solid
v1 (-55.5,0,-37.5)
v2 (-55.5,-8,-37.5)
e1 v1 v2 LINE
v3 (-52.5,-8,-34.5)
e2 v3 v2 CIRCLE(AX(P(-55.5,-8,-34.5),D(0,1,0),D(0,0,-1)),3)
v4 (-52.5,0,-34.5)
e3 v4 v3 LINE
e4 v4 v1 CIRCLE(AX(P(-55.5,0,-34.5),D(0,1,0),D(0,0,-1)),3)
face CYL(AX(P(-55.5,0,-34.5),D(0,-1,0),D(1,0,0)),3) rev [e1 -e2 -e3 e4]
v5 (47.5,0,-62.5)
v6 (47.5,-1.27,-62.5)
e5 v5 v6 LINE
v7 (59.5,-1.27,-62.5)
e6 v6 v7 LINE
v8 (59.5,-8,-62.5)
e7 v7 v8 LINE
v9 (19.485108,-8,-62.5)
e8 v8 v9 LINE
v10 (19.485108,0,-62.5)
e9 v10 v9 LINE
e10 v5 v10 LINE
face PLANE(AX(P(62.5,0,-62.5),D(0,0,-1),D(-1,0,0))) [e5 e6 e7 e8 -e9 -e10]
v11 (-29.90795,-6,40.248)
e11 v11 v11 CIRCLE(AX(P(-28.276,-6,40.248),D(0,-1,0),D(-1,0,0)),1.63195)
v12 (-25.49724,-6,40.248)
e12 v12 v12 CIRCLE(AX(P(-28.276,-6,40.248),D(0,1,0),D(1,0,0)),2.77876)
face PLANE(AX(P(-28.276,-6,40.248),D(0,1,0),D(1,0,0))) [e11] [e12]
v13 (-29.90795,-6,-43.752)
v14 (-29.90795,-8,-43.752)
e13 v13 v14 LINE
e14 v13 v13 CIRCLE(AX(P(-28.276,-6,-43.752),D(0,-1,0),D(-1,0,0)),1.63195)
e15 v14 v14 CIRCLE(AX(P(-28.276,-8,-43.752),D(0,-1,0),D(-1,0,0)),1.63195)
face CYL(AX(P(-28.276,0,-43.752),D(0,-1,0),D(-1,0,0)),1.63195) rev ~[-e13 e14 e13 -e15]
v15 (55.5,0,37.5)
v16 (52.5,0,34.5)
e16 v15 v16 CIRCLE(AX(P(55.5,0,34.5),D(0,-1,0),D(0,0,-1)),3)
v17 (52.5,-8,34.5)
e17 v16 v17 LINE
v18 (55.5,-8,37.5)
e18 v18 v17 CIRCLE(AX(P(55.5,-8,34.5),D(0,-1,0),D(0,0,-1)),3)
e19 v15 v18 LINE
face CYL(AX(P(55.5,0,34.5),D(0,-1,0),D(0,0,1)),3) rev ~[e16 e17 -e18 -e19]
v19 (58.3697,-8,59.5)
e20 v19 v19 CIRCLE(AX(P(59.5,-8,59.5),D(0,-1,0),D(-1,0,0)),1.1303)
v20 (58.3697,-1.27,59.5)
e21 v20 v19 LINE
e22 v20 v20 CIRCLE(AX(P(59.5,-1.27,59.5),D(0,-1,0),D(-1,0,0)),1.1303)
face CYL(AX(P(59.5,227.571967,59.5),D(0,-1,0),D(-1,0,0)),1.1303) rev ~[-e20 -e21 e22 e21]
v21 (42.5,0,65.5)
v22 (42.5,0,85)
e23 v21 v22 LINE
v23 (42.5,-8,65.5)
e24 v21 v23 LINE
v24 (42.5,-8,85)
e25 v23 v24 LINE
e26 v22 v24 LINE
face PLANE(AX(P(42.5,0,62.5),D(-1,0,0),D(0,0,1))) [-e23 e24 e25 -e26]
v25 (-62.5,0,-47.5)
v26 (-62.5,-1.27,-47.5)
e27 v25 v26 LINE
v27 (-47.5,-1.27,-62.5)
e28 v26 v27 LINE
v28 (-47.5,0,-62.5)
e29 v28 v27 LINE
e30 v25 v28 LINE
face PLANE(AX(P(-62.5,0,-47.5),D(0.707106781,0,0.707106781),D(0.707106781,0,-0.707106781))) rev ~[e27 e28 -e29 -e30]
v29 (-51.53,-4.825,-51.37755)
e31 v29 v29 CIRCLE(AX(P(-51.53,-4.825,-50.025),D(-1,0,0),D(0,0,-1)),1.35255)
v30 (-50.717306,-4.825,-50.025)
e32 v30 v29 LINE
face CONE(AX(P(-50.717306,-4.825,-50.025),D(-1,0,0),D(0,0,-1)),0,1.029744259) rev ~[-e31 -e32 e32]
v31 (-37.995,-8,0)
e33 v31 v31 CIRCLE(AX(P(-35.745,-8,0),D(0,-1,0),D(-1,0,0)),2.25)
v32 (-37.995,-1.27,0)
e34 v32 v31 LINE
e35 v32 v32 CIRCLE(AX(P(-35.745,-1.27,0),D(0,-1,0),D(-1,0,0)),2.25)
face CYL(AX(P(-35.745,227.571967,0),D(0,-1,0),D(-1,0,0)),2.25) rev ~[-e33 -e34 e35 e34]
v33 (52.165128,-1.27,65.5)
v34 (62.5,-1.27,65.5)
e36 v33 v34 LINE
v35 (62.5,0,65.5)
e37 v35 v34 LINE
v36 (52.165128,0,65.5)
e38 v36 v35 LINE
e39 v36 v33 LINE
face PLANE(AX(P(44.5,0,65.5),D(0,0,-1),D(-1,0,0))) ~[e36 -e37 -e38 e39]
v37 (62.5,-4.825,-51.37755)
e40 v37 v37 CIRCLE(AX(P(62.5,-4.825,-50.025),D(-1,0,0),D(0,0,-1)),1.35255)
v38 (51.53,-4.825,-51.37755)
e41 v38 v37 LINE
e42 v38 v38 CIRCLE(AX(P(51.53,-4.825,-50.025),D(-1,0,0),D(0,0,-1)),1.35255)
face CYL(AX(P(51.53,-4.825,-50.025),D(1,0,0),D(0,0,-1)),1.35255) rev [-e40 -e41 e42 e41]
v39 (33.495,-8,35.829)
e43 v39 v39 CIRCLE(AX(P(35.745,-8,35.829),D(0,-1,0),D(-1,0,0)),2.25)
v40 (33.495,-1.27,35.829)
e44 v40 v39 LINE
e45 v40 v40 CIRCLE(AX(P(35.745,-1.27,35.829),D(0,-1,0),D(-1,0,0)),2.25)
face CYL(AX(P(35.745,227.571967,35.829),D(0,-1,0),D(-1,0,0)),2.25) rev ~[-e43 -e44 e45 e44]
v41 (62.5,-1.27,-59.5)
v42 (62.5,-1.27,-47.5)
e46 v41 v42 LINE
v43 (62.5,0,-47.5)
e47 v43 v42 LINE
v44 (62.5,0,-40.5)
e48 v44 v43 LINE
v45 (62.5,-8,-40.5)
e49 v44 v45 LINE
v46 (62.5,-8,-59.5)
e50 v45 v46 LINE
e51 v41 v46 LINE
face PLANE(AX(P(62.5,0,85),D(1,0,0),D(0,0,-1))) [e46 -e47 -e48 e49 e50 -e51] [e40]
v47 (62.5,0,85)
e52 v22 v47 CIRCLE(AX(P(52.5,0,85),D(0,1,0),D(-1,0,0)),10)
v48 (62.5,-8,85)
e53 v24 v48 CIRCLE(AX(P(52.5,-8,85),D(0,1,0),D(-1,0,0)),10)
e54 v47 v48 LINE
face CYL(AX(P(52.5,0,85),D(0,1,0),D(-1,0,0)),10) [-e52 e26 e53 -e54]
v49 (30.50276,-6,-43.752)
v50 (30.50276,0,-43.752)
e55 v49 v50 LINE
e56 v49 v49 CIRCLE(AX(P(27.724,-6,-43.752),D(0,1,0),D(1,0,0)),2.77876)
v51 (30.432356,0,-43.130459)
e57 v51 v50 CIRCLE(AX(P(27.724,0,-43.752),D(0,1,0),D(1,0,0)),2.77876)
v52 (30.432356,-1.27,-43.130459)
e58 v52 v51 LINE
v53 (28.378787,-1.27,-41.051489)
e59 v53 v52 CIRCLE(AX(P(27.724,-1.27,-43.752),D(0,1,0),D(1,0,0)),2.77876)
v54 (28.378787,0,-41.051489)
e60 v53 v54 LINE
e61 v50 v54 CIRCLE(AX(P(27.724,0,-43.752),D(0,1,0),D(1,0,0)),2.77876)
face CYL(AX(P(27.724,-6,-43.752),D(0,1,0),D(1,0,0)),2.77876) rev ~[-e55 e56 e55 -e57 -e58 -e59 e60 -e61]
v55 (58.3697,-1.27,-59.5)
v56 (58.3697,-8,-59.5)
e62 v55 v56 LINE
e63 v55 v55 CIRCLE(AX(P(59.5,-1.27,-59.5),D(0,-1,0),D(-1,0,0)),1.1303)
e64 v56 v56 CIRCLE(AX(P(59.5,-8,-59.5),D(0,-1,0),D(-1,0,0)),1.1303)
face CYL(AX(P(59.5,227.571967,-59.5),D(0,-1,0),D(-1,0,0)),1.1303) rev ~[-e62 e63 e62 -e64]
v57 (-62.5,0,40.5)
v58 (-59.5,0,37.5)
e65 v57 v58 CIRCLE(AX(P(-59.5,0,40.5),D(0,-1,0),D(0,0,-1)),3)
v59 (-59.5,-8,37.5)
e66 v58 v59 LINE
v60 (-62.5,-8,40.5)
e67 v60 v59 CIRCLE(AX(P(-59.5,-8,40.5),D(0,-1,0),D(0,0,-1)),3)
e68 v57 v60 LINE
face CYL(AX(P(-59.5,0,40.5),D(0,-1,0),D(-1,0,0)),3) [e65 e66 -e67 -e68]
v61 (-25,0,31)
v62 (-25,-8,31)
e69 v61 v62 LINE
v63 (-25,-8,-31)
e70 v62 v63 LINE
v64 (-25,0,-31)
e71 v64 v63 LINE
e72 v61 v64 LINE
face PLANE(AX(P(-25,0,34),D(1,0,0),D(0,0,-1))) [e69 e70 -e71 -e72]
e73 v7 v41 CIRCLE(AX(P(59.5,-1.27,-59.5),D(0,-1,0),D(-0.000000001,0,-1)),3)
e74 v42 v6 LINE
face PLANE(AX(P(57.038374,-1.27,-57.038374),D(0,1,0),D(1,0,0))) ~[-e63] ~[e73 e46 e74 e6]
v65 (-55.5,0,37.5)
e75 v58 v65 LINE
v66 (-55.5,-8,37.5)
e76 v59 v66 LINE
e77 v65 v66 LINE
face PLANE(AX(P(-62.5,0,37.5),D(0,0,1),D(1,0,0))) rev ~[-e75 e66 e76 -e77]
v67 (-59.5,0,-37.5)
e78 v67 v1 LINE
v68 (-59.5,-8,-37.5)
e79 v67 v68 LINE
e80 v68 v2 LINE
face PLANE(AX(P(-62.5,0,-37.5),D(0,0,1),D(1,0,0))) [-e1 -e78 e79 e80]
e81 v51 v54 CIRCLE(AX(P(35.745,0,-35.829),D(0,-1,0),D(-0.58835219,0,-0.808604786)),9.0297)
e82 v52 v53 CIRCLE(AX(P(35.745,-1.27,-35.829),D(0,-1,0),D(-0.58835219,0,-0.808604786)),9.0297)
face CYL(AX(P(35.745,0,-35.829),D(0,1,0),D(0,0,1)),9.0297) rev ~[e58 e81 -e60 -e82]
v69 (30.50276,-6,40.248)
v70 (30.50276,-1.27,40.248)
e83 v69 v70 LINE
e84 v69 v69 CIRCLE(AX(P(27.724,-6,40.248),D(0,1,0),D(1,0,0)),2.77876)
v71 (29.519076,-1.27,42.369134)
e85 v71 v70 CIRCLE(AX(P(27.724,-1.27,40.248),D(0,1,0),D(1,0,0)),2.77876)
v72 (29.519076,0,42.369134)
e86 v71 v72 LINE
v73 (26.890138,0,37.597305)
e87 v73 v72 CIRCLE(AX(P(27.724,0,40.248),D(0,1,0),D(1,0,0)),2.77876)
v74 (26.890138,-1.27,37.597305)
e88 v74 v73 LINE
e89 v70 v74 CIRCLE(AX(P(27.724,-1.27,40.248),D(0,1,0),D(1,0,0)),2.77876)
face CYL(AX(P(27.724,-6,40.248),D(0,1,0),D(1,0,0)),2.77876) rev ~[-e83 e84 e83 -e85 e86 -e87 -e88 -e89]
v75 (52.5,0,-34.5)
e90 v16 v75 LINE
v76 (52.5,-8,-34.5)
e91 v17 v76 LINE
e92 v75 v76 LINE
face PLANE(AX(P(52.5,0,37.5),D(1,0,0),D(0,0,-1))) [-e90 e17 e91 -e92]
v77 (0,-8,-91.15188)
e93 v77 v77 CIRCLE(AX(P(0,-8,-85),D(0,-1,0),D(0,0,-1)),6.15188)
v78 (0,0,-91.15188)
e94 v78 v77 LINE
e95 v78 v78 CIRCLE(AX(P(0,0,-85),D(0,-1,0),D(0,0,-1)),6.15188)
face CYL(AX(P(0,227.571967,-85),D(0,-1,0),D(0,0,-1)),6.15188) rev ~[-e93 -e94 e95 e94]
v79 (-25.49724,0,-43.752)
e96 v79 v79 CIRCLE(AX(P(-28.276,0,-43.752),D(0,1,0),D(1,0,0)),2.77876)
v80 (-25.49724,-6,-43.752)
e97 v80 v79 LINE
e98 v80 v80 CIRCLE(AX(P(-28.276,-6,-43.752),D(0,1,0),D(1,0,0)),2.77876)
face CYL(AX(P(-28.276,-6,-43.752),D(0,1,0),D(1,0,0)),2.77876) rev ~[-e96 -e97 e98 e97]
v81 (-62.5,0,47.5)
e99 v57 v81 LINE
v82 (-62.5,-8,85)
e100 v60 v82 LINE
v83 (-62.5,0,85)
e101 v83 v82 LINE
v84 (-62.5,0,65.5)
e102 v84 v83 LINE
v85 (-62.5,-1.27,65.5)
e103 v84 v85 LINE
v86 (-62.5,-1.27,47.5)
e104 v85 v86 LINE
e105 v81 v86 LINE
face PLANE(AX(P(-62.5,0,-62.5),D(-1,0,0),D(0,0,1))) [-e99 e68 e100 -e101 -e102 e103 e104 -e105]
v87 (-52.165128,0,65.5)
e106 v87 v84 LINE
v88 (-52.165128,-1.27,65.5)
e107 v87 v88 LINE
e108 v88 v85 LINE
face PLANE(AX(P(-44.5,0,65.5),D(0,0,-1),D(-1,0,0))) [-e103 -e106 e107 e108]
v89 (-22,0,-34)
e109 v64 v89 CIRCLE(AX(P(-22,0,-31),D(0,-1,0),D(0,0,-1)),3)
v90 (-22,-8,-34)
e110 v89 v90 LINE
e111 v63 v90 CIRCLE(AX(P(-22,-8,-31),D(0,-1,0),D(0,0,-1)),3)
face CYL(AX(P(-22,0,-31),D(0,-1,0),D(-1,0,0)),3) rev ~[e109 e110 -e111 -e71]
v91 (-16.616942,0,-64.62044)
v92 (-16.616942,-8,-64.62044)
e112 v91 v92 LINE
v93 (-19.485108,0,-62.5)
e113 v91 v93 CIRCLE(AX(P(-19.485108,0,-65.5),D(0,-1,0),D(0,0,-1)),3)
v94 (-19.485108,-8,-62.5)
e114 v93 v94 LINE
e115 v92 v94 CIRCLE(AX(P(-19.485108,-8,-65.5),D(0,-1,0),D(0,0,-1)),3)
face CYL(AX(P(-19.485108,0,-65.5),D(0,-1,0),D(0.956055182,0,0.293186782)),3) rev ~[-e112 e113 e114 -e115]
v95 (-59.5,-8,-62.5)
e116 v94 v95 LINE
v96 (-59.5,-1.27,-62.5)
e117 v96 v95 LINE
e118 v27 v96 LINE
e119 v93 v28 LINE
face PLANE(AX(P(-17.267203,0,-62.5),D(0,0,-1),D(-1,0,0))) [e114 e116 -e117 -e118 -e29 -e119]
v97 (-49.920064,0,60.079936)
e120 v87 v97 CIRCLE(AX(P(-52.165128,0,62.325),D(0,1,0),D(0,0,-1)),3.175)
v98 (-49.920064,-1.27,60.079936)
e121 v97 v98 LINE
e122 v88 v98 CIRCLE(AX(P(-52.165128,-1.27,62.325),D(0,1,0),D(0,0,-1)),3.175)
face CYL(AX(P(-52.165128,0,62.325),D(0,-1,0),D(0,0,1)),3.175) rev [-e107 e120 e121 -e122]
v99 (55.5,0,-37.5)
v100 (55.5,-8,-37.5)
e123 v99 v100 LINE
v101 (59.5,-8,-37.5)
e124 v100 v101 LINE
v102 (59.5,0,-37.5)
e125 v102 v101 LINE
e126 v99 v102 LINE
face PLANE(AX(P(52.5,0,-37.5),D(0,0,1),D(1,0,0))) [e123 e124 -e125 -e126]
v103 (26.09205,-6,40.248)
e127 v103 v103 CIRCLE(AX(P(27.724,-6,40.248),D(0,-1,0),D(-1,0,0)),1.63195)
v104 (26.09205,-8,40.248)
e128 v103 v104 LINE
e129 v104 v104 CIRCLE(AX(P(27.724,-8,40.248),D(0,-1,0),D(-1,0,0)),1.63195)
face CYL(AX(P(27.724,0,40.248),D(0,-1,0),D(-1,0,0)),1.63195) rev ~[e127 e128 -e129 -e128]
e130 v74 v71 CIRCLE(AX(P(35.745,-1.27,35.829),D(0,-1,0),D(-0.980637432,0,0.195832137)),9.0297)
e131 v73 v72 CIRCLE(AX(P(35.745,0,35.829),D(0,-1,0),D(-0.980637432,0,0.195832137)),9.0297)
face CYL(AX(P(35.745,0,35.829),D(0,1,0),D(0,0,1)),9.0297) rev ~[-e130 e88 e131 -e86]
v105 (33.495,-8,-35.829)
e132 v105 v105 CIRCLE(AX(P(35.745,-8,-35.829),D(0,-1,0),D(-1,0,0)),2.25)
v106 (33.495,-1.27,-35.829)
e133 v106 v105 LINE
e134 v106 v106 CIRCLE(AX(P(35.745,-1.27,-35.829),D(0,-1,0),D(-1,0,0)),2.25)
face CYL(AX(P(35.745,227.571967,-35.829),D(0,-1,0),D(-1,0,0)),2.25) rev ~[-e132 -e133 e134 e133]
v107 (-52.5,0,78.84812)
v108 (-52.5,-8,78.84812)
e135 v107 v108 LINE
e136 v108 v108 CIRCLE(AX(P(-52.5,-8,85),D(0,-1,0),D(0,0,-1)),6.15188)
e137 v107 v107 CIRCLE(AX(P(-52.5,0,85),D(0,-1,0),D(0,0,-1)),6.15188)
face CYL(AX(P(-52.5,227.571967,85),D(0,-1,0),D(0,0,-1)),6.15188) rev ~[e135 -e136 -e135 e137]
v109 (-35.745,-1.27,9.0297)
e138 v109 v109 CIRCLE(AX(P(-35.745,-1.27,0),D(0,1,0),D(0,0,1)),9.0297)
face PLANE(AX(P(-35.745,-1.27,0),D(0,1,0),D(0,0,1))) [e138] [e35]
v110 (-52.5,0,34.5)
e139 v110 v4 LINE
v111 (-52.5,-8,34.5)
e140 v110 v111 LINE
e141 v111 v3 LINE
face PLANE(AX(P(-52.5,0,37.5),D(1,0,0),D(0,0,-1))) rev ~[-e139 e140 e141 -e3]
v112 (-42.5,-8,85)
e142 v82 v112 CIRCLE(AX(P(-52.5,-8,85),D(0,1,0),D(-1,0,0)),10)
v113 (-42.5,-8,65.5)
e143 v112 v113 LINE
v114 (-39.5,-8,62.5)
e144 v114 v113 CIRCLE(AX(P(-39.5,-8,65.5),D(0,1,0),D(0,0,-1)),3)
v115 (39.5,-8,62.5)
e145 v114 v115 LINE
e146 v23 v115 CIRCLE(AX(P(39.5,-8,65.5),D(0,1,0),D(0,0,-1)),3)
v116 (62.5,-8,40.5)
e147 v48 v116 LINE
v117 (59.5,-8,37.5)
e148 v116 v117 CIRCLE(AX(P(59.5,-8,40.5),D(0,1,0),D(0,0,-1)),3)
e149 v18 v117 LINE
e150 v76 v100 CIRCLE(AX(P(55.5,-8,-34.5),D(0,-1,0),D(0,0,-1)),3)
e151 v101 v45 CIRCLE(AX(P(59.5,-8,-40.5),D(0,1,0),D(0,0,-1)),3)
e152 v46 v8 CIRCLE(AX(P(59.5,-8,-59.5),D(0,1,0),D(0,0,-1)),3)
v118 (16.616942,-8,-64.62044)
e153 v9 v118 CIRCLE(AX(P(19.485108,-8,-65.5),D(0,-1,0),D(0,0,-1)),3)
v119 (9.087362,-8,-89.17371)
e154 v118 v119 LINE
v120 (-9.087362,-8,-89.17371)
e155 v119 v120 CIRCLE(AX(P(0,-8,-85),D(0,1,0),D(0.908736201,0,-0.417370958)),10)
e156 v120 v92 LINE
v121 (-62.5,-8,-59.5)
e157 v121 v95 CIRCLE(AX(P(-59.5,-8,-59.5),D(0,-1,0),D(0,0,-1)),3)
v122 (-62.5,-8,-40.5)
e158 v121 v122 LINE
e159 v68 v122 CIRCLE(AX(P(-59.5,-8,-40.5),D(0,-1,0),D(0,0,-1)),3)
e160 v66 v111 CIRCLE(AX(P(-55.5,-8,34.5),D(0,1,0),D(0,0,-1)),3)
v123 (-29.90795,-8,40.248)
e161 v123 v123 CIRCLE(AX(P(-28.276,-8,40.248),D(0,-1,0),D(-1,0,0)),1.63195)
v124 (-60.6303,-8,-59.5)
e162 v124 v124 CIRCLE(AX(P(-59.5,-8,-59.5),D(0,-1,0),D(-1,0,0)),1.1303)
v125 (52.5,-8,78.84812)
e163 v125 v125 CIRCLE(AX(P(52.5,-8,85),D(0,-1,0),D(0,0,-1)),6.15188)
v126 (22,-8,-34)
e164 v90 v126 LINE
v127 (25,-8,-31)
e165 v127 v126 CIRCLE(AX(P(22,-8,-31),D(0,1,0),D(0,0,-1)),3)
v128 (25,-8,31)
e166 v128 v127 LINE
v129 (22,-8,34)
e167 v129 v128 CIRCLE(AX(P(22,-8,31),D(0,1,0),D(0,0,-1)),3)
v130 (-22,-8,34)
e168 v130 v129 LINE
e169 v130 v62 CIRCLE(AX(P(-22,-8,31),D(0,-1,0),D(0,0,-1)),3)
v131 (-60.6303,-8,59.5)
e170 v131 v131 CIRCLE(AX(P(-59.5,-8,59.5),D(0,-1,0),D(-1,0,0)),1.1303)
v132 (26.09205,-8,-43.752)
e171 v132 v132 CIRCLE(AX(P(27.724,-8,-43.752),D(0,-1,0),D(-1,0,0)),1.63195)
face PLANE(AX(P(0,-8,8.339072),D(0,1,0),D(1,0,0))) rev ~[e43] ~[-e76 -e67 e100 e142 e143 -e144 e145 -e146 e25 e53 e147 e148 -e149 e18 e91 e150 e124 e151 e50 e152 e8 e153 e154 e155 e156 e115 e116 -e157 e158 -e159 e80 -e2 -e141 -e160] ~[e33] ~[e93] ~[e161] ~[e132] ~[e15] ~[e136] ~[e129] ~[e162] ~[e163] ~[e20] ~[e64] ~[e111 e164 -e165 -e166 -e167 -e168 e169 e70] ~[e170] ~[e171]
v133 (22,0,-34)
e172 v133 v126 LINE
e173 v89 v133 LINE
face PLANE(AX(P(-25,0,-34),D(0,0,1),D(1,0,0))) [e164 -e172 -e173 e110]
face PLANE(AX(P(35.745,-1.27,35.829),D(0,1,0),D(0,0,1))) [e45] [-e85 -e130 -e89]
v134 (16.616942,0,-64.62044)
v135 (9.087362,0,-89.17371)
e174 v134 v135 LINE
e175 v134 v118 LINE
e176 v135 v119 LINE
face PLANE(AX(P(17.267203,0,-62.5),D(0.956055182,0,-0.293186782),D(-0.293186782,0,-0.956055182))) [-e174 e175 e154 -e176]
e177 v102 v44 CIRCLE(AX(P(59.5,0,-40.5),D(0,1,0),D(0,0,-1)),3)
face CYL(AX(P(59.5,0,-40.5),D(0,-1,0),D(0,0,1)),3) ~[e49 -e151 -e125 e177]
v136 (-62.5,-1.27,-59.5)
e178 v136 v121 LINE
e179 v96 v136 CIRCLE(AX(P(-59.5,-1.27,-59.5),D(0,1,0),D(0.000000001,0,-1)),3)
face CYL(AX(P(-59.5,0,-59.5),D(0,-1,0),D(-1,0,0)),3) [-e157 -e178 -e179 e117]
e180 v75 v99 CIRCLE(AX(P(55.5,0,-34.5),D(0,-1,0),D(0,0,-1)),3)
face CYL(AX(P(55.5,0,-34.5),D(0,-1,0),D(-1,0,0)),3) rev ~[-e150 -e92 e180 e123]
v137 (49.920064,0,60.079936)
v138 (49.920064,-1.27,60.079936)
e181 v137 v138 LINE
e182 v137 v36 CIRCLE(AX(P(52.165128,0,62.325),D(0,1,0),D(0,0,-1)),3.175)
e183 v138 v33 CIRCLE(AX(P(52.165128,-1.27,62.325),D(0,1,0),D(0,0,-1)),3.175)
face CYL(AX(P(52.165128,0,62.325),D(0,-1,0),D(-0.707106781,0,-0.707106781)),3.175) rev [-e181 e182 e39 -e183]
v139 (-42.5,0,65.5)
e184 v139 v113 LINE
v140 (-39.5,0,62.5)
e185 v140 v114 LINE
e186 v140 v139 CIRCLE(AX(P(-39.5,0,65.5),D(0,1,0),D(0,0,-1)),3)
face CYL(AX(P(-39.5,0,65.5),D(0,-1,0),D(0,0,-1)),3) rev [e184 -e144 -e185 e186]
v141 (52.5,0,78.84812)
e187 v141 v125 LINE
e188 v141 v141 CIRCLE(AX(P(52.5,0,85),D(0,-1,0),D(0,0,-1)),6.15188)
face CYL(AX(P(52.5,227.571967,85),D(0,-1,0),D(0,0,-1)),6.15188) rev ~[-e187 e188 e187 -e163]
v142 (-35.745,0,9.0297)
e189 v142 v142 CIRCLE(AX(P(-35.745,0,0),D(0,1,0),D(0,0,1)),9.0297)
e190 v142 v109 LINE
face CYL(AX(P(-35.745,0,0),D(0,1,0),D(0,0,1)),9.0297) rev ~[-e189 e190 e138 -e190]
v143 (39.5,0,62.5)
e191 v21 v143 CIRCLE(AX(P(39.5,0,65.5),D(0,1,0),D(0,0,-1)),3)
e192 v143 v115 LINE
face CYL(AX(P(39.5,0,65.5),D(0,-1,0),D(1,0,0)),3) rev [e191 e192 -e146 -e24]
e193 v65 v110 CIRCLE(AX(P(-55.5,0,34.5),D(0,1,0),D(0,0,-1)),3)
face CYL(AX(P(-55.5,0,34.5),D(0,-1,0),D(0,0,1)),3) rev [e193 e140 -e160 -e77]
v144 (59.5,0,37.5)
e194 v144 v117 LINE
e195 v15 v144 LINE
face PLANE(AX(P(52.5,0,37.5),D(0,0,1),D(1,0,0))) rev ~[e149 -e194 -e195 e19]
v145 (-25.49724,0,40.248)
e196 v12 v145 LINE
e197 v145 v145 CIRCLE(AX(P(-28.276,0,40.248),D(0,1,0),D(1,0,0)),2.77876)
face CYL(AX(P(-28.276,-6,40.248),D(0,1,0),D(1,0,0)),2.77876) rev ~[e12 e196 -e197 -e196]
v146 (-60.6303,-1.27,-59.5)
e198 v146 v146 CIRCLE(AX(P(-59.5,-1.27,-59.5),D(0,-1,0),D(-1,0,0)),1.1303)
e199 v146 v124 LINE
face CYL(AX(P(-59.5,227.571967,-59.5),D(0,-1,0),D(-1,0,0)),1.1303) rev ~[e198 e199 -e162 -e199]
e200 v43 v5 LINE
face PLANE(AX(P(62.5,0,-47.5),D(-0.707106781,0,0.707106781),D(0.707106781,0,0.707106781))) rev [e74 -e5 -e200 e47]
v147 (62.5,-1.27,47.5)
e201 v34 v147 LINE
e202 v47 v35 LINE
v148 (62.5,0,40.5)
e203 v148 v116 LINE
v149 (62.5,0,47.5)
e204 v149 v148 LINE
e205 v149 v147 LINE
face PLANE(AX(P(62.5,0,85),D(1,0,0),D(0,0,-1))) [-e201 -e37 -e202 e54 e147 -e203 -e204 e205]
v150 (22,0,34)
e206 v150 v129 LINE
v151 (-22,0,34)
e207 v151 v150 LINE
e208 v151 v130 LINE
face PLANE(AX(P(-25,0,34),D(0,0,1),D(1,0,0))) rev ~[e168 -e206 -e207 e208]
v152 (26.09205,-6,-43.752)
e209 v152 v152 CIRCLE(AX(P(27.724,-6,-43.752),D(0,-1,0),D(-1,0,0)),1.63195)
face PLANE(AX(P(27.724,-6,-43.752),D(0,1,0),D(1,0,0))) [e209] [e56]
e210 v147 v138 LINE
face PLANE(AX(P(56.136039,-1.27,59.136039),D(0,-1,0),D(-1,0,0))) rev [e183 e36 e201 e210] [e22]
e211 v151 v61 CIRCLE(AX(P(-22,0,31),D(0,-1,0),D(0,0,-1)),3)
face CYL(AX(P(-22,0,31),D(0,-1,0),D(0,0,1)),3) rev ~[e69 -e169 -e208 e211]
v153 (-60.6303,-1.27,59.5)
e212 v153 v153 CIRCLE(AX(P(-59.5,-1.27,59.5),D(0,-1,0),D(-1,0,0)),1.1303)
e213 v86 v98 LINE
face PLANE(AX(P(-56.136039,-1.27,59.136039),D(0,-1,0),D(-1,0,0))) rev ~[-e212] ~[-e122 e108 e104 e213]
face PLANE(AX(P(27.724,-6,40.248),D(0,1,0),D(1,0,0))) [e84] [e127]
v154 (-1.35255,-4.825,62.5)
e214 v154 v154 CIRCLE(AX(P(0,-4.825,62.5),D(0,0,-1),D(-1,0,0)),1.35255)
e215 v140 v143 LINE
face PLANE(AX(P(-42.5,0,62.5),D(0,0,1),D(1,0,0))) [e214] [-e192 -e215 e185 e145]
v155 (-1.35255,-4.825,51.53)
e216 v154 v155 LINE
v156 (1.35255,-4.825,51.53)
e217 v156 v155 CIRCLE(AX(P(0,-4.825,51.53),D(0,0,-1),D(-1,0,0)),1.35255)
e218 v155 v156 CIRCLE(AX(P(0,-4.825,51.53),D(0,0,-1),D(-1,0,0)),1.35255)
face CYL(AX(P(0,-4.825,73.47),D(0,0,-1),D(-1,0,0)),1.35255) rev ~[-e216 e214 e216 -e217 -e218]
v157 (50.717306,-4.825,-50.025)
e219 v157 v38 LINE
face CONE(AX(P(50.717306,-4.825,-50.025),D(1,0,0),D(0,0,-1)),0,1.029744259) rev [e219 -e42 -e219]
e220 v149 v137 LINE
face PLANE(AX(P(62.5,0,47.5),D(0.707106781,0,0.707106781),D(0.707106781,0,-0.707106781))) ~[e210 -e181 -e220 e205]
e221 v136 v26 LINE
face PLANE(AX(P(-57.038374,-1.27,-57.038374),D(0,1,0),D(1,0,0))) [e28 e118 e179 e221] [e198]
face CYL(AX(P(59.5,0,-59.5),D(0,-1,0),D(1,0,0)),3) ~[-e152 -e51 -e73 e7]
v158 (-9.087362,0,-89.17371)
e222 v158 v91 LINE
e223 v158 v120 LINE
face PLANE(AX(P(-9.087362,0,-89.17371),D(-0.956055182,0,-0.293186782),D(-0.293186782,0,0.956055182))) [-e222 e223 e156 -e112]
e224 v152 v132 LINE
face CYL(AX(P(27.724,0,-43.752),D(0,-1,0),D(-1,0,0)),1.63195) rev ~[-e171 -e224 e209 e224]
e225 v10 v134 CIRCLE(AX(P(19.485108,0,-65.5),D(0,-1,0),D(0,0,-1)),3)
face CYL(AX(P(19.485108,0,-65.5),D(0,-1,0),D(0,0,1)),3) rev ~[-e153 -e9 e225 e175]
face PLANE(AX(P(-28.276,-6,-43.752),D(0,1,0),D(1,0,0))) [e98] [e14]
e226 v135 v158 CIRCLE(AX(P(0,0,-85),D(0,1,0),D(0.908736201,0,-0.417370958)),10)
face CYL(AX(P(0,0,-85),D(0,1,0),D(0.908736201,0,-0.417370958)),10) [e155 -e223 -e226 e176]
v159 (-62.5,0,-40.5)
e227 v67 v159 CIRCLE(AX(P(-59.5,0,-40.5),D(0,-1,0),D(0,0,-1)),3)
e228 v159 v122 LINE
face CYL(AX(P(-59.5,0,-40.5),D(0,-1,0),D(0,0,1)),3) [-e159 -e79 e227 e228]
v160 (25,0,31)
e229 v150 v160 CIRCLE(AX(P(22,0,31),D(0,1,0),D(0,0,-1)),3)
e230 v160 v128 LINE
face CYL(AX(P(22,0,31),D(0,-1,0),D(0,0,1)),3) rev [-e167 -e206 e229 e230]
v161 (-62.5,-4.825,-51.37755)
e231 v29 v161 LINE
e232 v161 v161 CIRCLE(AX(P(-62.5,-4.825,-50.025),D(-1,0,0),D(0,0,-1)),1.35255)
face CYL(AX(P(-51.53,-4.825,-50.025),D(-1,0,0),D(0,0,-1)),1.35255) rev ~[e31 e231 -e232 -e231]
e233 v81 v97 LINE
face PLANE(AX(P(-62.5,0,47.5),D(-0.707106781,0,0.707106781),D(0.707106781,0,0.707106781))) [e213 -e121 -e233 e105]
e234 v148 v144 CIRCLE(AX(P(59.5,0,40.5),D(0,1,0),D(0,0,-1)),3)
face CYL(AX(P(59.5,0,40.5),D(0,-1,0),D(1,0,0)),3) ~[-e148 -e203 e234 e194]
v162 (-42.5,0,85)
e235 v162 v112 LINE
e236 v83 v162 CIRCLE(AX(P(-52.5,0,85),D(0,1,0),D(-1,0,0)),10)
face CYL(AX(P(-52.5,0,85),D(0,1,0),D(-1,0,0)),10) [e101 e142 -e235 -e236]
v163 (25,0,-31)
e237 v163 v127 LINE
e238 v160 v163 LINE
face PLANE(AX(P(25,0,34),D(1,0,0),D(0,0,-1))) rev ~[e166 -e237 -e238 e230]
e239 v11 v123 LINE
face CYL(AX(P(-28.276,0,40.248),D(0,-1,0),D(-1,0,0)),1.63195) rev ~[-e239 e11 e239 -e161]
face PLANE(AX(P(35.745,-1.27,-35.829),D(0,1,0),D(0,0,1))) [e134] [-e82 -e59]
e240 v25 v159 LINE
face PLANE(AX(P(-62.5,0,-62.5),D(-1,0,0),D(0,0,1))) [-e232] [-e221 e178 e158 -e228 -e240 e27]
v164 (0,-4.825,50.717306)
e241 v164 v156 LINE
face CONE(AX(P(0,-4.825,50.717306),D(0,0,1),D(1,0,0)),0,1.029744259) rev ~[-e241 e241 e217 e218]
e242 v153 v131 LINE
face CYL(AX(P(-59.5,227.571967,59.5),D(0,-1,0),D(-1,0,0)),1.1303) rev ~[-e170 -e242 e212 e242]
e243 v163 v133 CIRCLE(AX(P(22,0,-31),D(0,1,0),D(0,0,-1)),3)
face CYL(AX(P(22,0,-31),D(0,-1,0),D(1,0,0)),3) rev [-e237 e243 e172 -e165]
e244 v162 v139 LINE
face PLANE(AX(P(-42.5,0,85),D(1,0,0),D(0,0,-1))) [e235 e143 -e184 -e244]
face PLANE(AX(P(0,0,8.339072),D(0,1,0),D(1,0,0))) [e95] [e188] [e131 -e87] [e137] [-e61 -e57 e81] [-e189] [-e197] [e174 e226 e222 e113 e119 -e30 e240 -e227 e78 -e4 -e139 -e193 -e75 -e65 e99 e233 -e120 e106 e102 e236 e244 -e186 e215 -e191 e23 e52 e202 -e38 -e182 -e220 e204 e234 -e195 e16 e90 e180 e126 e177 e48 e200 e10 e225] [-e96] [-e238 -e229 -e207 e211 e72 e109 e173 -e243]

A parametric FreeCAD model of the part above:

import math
import FreeCAD as App
import Part
import Sketcher
from FreeCAD import Vector
Q = App.Units.Quantity


def edges_at(feature, points):
    """Names of the edges that pass closest to the given points."""
    edges = feature.Shape.Edges
    near = lambda p: min(range(len(edges)), key=lambda i: edges[i].distToShape(Part.Vertex(*p))[0])
    return sorted({f"Edge{near(p) + 1}" for p in points})

doc = App.newDocument("Part")
body = doc.addObject("PartDesign::Body", "Body")

# Sketch on XZ plane
sketch1 = body.newObject("Sketcher::SketchObject", "Sketch")
sketch1.AttachmentSupport = (doc.getObject("XZ_Plane"), [""])
sketch1.MapMode = "FlatFace"
sketch1.addGeometry(Part.LineSegment(Vector(62, 85, 0), Vector(62, -62, 0)), False)
sketch1.addGeometry(Part.LineSegment(Vector(62, -62, 0), Vector(17, -62, 0)), False)
sketch1.addGeometry(Part.LineSegment(Vector(17, -62, 0), Vector(9, -89, 0)), False)
sketch1.addGeometry(Part.ArcOfCircle(Part.Circle(Vector(0, -85, 0), Vector(0, 0, 1), 10), math.radians(-155), math.radians(-25)), False)
sketch1.addGeometry(Part.LineSegment(Vector(-9, -89, 0), Vector(-17, -62, 0)), False)
sketch1.addGeometry(Part.LineSegment(Vector(-17, -62, 0), Vector(-62, -62, 0)), False)
sketch1.addGeometry(Part.LineSegment(Vector(-62, -62, 0), Vector(-62, 85, 0)), False)
sketch1.addGeometry(Part.ArcOfCircle(Part.Circle(Vector(-52, 85, 0), Vector(0, 0, 1), 10), math.radians(0), math.radians(180)), False)
sketch1.addGeometry(Part.LineSegment(Vector(-42, 85, 0), Vector(-42, 62, 0)), False)
sketch1.addGeometry(Part.LineSegment(Vector(-42, 62, 0), Vector(42, 62, 0)), False)
sketch1.addGeometry(Part.LineSegment(Vector(42, 62, 0), Vector(42, 85, 0)), False)
sketch1.addGeometry(Part.ArcOfCircle(Part.Circle(Vector(52, 85, 0), Vector(0, 0, 1), 10), math.radians(0), math.radians(180)), False)
sketch1.addConstraint(Sketcher.Constraint("Coincident", 0, 2, 1, 1))
sketch1.addConstraint(Sketcher.Constraint("Coincident", 1, 2, 2, 1))
sketch1.addConstraint(Sketcher.Constraint("Coincident", 2, 2, 3, 2))
sketch1.addConstraint(Sketcher.Constraint("Coincident", 3, 1, 4, 1))
sketch1.addConstraint(Sketcher.Constraint("Coincident", 4, 2, 5, 1))
sketch1.addConstraint(Sketcher.Constraint("Coincident", 5, 2, 6, 1))
sketch1.addConstraint(Sketcher.Constraint("Tangent", 6, 2, 7, 2))
sketch1.addConstraint(Sketcher.Constraint("Tangent", 7, 1, 8, 1))
sketch1.addConstraint(Sketcher.Constraint("Coincident", 8, 2, 9, 1))
sketch1.addConstraint(Sketcher.Constraint("Coincident", 9, 2, 10, 1))
sketch1.addConstraint(Sketcher.Constraint("Tangent", 10, 2, 11, 2))
sketch1.addConstraint(Sketcher.Constraint("Tangent", 11, 1, 0, 1))
sketch1.addConstraint(Sketcher.Constraint("Vertical", 0))
sketch1.addConstraint(Sketcher.Constraint("Horizontal", 1))
sketch1.addConstraint(Sketcher.Constraint("Horizontal", 5))
sketch1.addConstraint(Sketcher.Constraint("Vertical", 6))
sketch1.addConstraint(Sketcher.Constraint("Vertical", 8))
sketch1.addConstraint(Sketcher.Constraint("Horizontal", 9))
sketch1.addConstraint(Sketcher.Constraint("Vertical", 10))
sketch1.addConstraint(Sketcher.Constraint("Equal", 3, 7))
sketch1.addConstraint(Sketcher.Constraint("Equal", 7, 11))
sketch1.addConstraint(Sketcher.Constraint("Symmetric", 7, 3, 11, 3, -2))
sketch1.addConstraint(Sketcher.Constraint("Symmetric", 2, 2, 3, 1, -2))
sketch1.addConstraint(Sketcher.Constraint("Symmetric", 1, 2, 4, 2, -2))
sketch1.addConstraint(Sketcher.Constraint("Radius", 3, Q("10 mm")))
sketch1.addConstraint(Sketcher.Constraint("DistanceX", 9, 1, 9, 2, Q("85 mm")))
sketch1.addConstraint(Sketcher.Constraint("DistanceY", 0, 2, 0, 1, Q("147.5 mm")))
sketch1.addConstraint(Sketcher.Constraint("DistanceY", 8, 2, 8, 1, Q("22.5 mm")))
sketch1.addConstraint(Sketcher.Constraint("DistanceY", 3, 3, -1, 1, Q("85 mm")))
sketch1.addConstraint(Sketcher.Constraint("DistanceY", -1, 1, 7, 3, Q("85 mm")))
sketch1.addConstraint(Sketcher.Constraint("Distance", 2, Q("27.899759 mm")))
sketch1.addConstraint(Sketcher.Constraint("DistanceX", 1, 2, 1, 1, Q("45.232797 mm")))
pad1 = body.newObject("PartDesign::Pad", "Pad")
pad1.Profile = sketch1
pad1.Length = 8

# Sketch on XZ plane
sketch2 = body.newObject("Sketcher::SketchObject", "Sketch001")
sketch2.AttachmentSupport = (doc.getObject("XZ_Plane"), [""])
sketch2.MapMode = "FlatFace"
sketch2.addGeometry(Part.LineSegment(Vector(-25, -34, 0), Vector(-25, 34, 0)), False)
sketch2.addGeometry(Part.LineSegment(Vector(-25, 34, 0), Vector(25, 34, 0)), False)
sketch2.addGeometry(Part.LineSegment(Vector(25, 34, 0), Vector(25, -34, 0)), False)
sketch2.addGeometry(Part.LineSegment(Vector(25, -34, 0), Vector(-25, -34, 0)), False)
sketch2.addGeometry(Part.LineSegment(Vector(-62, -38, 0), Vector(-62, 38, 0)), False)
sketch2.addGeometry(Part.LineSegment(Vector(-62, 38, 0), Vector(-52, 38, 0)), False)
sketch2.addGeometry(Part.LineSegment(Vector(-52, 38, 0), Vector(-52, -38, 0)), False)
sketch2.addGeometry(Part.LineSegment(Vector(-52, -38, 0), Vector(-62, -38, 0)), False)
sketch2.addGeometry(Part.LineSegment(Vector(52, -38, 0), Vector(52, 38, 0)), False)
sketch2.addGeometry(Part.LineSegment(Vector(52, 38, 0), Vector(62, 38, 0)), False)
sketch2.addGeometry(Part.LineSegment(Vector(62, 38, 0), Vector(62, -38, 0)), False)
sketch2.addGeometry(Part.LineSegment(Vector(62, -38, 0), Vector(52, -38, 0)), False)
sketch2.addConstraint(Sketcher.Constraint("Coincident", 0, 2, 1, 1))
sketch2.addConstraint(Sketcher.Constraint("Coincident", 1, 2, 2, 1))
sketch2.addConstraint(Sketcher.Constraint("Coincident", 2, 2, 3, 1))
sketch2.addConstraint(Sketcher.Constraint("Coincident", 3, 2, 0, 1))
sketch2.addConstraint(Sketcher.Constraint("Coincident", 4, 2, 5, 1))
sketch2.addConstraint(Sketcher.Constraint("Coincident", 5, 2, 6, 1))
sketch2.addConstraint(Sketcher.Constraint("Coincident", 6, 2, 7, 1))
sketch2.addConstraint(Sketcher.Constraint("Coincident", 7, 2, 4, 1))
sketch2.addConstraint(Sketcher.Constraint("Coincident", 8, 2, 9, 1))
sketch2.addConstraint(Sketcher.Constraint("Coincident", 9, 2, 10, 1))
sketch2.addConstraint(Sketcher.Constraint("Coincident", 10, 2, 11, 1))
sketch2.addConstraint(Sketcher.Constraint("Coincident", 11, 2, 8, 1))
sketch2.addConstraint(Sketcher.Constraint("Vertical", 0))
sketch2.addConstraint(Sketcher.Constraint("Horizontal", 1))
sketch2.addConstraint(Sketcher.Constraint("Vertical", 2))
sketch2.addConstraint(Sketcher.Constraint("Horizontal", 3))
sketch2.addConstraint(Sketcher.Constraint("Vertical", 4))
sketch2.addConstraint(Sketcher.Constraint("Horizontal", 5))
sketch2.addConstraint(Sketcher.Constraint("Vertical", 6))
sketch2.addConstraint(Sketcher.Constraint("Horizontal", 7))
sketch2.addConstraint(Sketcher.Constraint("Vertical", 8))
sketch2.addConstraint(Sketcher.Constraint("Horizontal", 9))
sketch2.addConstraint(Sketcher.Constraint("Vertical", 10))
sketch2.addConstraint(Sketcher.Constraint("Horizontal", 11))
sketch2.addConstraint(Sketcher.Constraint("Symmetric", 0, 2, 2, 2, -1, 1))
sketch2.addConstraint(Sketcher.Constraint("Symmetric", 6, 2, 8, 2, -1, 1))
sketch2.addConstraint(Sketcher.Constraint("Symmetric", 4, 2, 10, 2, -1, 1))
sketch2.addConstraint(Sketcher.Constraint("Horizontal", 5, 2, 8, 2))
sketch2.addConstraint(Sketcher.Constraint("DistanceX", 1, 1, 1, 2, Q("50 mm")))
sketch2.addConstraint(Sketcher.Constraint("DistanceX", 5, 1, 5, 2, Q("10 mm")))
sketch2.addConstraint(Sketcher.Constraint("DistanceY", 0, 1, 0, 2, Q("68 mm")))
sketch2.addConstraint(Sketcher.Constraint("DistanceY", 4, 1, 4, 2, Q("75 mm")))
sketch2.addConstraint(Sketcher.Constraint("DistanceX", 5, 2, 8, 2, Q("105 mm")))
pocket1 = body.newObject("PartDesign::Pocket", "Pocket")
pocket1.Profile = sketch2
pocket1.Type = "ThroughAll"
pocket1.Reversed = True

# Sketch on XZ plane
sketch3 = body.newObject("Sketcher::SketchObject", "Sketch002")
sketch3.AttachmentSupport = (doc.getObject("XZ_Plane"), [""])
sketch3.MapMode = "FlatFace"
sketch3.addGeometry(Part.Circle(Vector(-52, 85, 0), Vector(0, 0, 1), 6), False)
sketch3.addGeometry(Part.Circle(Vector(0, -85, 0), Vector(0, 0, 1), 6), False)
sketch3.addGeometry(Part.Circle(Vector(52, 85, 0), Vector(0, 0, 1), 6), False)
sketch3.addConstraint(Sketcher.Constraint("Equal", 0, 1))
sketch3.addConstraint(Sketcher.Constraint("Equal", 1, 2))
sketch3.addConstraint(Sketcher.Constraint("Symmetric", 0, 3, 2, 3, -2))
sketch3.addConstraint(Sketcher.Constraint("PointOnObject", 1, 3, -2))
sketch3.addConstraint(Sketcher.Constraint("DistanceY", -1, 1, 0, 3, Q("85 mm")))
sketch3.addConstraint(Sketcher.Constraint("DistanceY", 1, 3, -1, 1, Q("85 mm")))
sketch3.addConstraint(Sketcher.Constraint("DistanceX", 0, 3, 2, 3, Q("105 mm")))
sketch3.addConstraint(Sketcher.Constraint("Diameter", 0, Q("12.30376 mm")))
doc.recompute()
hole = body.newObject("PartDesign::Hole", "Hole")
hole.Profile = sketch3
hole.ThreadType = "None"
hole.Diameter = 12.30376
hole.DepthType = "ThroughAll"
hole.Reversed = True
doc.recompute()

fillet = body.newObject("PartDesign::Fillet", "Fillet")
fillet.Base = (hole, edges_at(hole, [
    (17.267, -4, -62.5),
    (62.5, -4, -62.5),
    (42.5, -4, 62.5),
    (-42.5, -4, 62.5),
    (-62.5, -4, -62.5),
    (-17.267, -4, -62.5),
    (-25, -4, 34),
    (-25, -4, -34),
    (25, -4, -34),
    (25, -4, 34),
    (-62.5, -4, 37.5),
    (-62.5, -4, -37.5),
    (-52.5, -4, -37.5),
    (-52.5, -4, 37.5),
    (62.5, -4, -37.5),
    (62.5, -4, 37.5),
    (52.5, -4, 37.5),
    (52.5, -4, -37.5),
]))
fillet.Radius = 3

# Sketch on XZ plane
sketch4 = body.newObject("Sketcher::SketchObject", "Sketch003")
sketch4.AttachmentSupport = (doc.getObject("XZ_Plane"), [""])
sketch4.MapMode = "FlatFace"
sketch4.addGeometry(Part.Circle(Vector(-35.7, 0, 0), Vector(0, 0, 1), 2.2), False)
sketch4.addGeometry(Part.Circle(Vector(35.7, 35.8, 0), Vector(0, 0, 1), 2.2), False)
sketch4.addGeometry(Part.Circle(Vector(35.7, -35.8, 0), Vector(0, 0, 1), 2.2), False)
sketch4.addConstraint(Sketcher.Constraint("Equal", 0, 1))
sketch4.addConstraint(Sketcher.Constraint("Equal", 1, 2))
sketch4.addConstraint(Sketcher.Constraint("Symmetric", 1, 3, 2, 3, -1))
sketch4.addConstraint(Sketcher.Constraint("PointOnObject", 0, 3, -1))
sketch4.addConstraint(Sketcher.Constraint("Diameter", 0, Q("4.5 mm")))
sketch4.addConstraint(Sketcher.Constraint("DistanceX", 0, 3, 1, 3, Q("71.49 mm")))
sketch4.addConstraint(Sketcher.Constraint("DistanceX", 0, 3, -1, 1, Q("35.745 mm")))
sketch4.addConstraint(Sketcher.Constraint("DistanceY", -1, 1, 1, 3, Q("35.829 mm")))
doc.recompute()
hole2 = body.newObject("PartDesign::Hole", "Hole001")
hole2.Profile = sketch4
hole2.ThreadType = "None"
hole2.Diameter = 4.5
hole2.DepthType = "ThroughAll"
hole2.Reversed = True

# Sketch on XZ plane
sketch5 = body.newObject("Sketcher::SketchObject", "Sketch004")
sketch5.AttachmentSupport = (doc.getObject("XZ_Plane"), [""])
sketch5.MapMode = "FlatFace"
sketch5.addGeometry(Part.Circle(Vector(-36, 0, 0), Vector(0, 0, 1), 9), False)
sketch5.addGeometry(Part.Circle(Vector(36, -36, 0), Vector(0, 0, 1), 9), False)
sketch5.addGeometry(Part.Circle(Vector(36, 36, 0), Vector(0, 0, 1), 9), False)
sketch5.addConstraint(Sketcher.Constraint("Equal", 0, 1))
sketch5.addConstraint(Sketcher.Constraint("Equal", 1, 2))
sketch5.addConstraint(Sketcher.Constraint("Symmetric", 1, 3, 2, 3, -1))
sketch5.addConstraint(Sketcher.Constraint("PointOnObject", 0, 3, -1))
sketch5.addConstraint(Sketcher.Constraint("Diameter", 0, Q("18.0594 mm")))
sketch5.addConstraint(Sketcher.Constraint("DistanceX", 0, 3, 1, 3, Q("71.49 mm")))
sketch5.addConstraint(Sketcher.Constraint("DistanceX", 0, 3, -1, 1, Q("35.745 mm")))
sketch5.addConstraint(Sketcher.Constraint("DistanceY", 1, 3, -1, 1, Q("35.829 mm")))
pocket2 = body.newObject("PartDesign::Pocket", "Pocket001")
pocket2.Profile = sketch5
pocket2.Length = 1.27
pocket2.Reversed = True

# Sketch on XZ plane
sketch6 = body.newObject("Sketcher::SketchObject", "Sketch005")
sketch6.AttachmentSupport = (doc.getObject("XZ_Plane"), [""])
sketch6.MapMode = "FlatFace"
sketch6.addGeometry(Part.Circle(Vector(-59.5, -59.5, 0), Vector(0, 0, 1), 1.1), False)
sketch6.addGeometry(Part.Circle(Vector(59.5, -59.5, 0), Vector(0, 0, 1), 1.1), False)
sketch6.addGeometry(Part.Circle(Vector(59.5, 59.5, 0), Vector(0, 0, 1), 1.1), False)
sketch6.addGeometry(Part.Circle(Vector(-59.5, 59.5, 0), Vector(0, 0, 1), 1.1), False)
sketch6.addConstraint(Sketcher.Constraint("Equal", 0, 1))
sketch6.addConstraint(Sketcher.Constraint("Equal", 1, 2))
sketch6.addConstraint(Sketcher.Constraint("Equal", 2, 3))
sketch6.addConstraint(Sketcher.Constraint("Symmetric", 0, 3, 2, 3, -1, 1))
sketch6.addConstraint(Sketcher.Constraint("Symmetric", 1, 3, 3, 3, -1, 1))
sketch6.addConstraint(Sketcher.Constraint("Symmetric", 0, 3, 1, 3, -2))
sketch6.addConstraint(Sketcher.Constraint("DistanceX", 0, 3, 1, 3, Q("119 mm")))
sketch6.addConstraint(Sketcher.Constraint("DistanceY", 1, 3, 2, 3, Q("119 mm")))
sketch6.addConstraint(Sketcher.Constraint("Diameter", 0, Q("2.2606 mm")))
doc.recompute()
hole3 = body.newObject("PartDesign::Hole", "Hole002")
hole3.Profile = sketch6
hole3.ThreadType = "None"
hole3.Diameter = 2.2606
hole3.DepthType = "ThroughAll"
hole3.Reversed = True

# Sketch on XZ plane
sketch7 = body.newObject("Sketcher::SketchObject", "Sketch006")
sketch7.AttachmentSupport = (doc.getObject("XZ_Plane"), [""])
sketch7.MapMode = "FlatFace"
sketch7.addGeometry(Part.LineSegment(Vector(-62.5, -47.5, 0), Vector(-47.5, -62.5, 0)), False)
sketch7.addGeometry(Part.LineSegment(Vector(-47.5, -62.5, 0), Vector(-59.5, -62.5, 0)), False)
sketch7.addGeometry(Part.ArcOfCircle(Part.Circle(Vector(-59.5, -59.5, 0), Vector(0, 0, 1), 3), math.radians(180), math.radians(270)), False)
sketch7.addGeometry(Part.LineSegment(Vector(-62.5, -59.5, 0), Vector(-62.5, -47.5, 0)), False)
sketch7.addGeometry(Part.LineSegment(Vector(-44.5, 65.5, 0), Vector(-62.5, 47.5, 0)), False)
sketch7.addGeometry(Part.LineSegment(Vector(-62.5, 47.5, 0), Vector(-62.5, 65.5, 0)), False)
sketch7.addGeometry(Part.LineSegment(Vector(-62.5, 65.5, 0), Vector(-44.5, 65.5, 0)), False)
sketch7.addConstraint(Sketcher.Constraint("Coincident", 0, 2, 1, 1))
sketch7.addConstraint(Sketcher.Constraint("Tangent", 1, 2, 2, 2))
sketch7.addConstraint(Sketcher.Constraint("Tangent", 2, 1, 3, 1))
sketch7.addConstraint(Sketcher.Constraint("Coincident", 3, 2, 0, 1))
sketch7.addConstraint(Sketcher.Constraint("Coincident", 4, 2, 5, 1))
sketch7.addConstraint(Sketcher.Constraint("Coincident", 5, 2, 6, 1))
sketch7.addConstraint(Sketcher.Constraint("Coincident", 6, 2, 4, 1))
sketch7.addConstraint(Sketcher.Constraint("Horizontal", 1))
sketch7.addConstraint(Sketcher.Constraint("Vertical", 3))
sketch7.addConstraint(Sketcher.Constraint("Vertical", 5))
sketch7.addConstraint(Sketcher.Constraint("Horizontal", 6))
sketch7.addConstraint(Sketcher.Constraint("Symmetric", 3, 2, 4, 2, -1))
sketch7.addConstraint(Sketcher.Constraint("Perpendicular", 0, 4))
sketch7.addConstraint(Sketcher.Constraint("Equal", 1, 3))
sketch7.addConstraint(Sketcher.Constraint("Radius", 2, Q("3 mm")))
sketch7.addConstraint(Sketcher.Constraint("DistanceX", 1, 2, 1, 1, Q("12 mm")))
sketch7.addConstraint(Sketcher.Constraint("DistanceX", 6, 1, 6, 2, Q("18 mm")))
sketch7.addConstraint(Sketcher.Constraint("DistanceY", 3, 2, 4, 2, Q("95 mm")))
sketch7.addConstraint(Sketcher.Constraint("DistanceX", 2, 3, -1, 1, Q("59.5 mm")))
pocket3 = body.newObject("PartDesign::Pocket", "Pocket002")
pocket3.Profile = sketch7
pocket3.Length = 1.27
pocket3.Reversed = True
doc.recompute()

fillet2 = body.newObject("PartDesign::Fillet", "Fillet001")
fillet2.Base = (pocket3, edges_at(pocket3, [(-44.5, -0.635, 65.5)]))
fillet2.Radius = 3.175
doc.recompute()

mirrored = body.newObject("PartDesign::Mirrored", "Mirrored")
mirrored.Originals = [pocket3]
mirrored.MirrorPlane = (doc.getObject("YZ_Plane"), [""])
body.Tip = mirrored
doc.recompute()

fillet3 = body.newObject("PartDesign::Fillet", "Fillet002")
fillet3.Base = (mirrored, edges_at(mirrored, [(44.5, -0.635, 65.5)]))
fillet3.Radius = 3.175

# Sketch on XZ plane
sketch8 = body.newObject("Sketcher::SketchObject", "Sketch007")
sketch8.AttachmentSupport = (doc.getObject("XZ_Plane"), [""])
sketch8.MapMode = "FlatFace"
sketch8.AttachmentOffset = App.Placement(Vector(0, 0, 4.825), App.Rotation())
sketch8.addGeometry(Part.LineSegment(Vector(50.7, -50, 0), Vector(62.5, -50, 0)), False)
sketch8.addGeometry(Part.LineSegment(Vector(62.5, -50, 0), Vector(62.5, -51.4, 0)), False)
sketch8.addGeometry(Part.LineSegment(Vector(62.5, -51.4, 0), Vector(51.5, -51.4, 0)), False)
sketch8.addGeometry(Part.LineSegment(Vector(51.5, -51.4, 0), Vector(50.7, -50, 0)), False)
sketch8.addGeometry(Part.LineSegment(Vector(62.5, -50, 0), Vector(50.7, -50, 0)), True)  # axis
sketch8.addConstraint(Sketcher.Constraint("Coincident", 0, 2, 1, 1))
sketch8.addConstraint(Sketcher.Constraint("Coincident", 1, 2, 2, 1))
sketch8.addConstraint(Sketcher.Constraint("Coincident", 2, 2, 3, 1))
sketch8.addConstraint(Sketcher.Constraint("Coincident", 3, 2, 0, 1))
sketch8.addConstraint(Sketcher.Constraint("Horizontal", 0))
sketch8.addConstraint(Sketcher.Constraint("Vertical", 1))
sketch8.addConstraint(Sketcher.Constraint("Horizontal", 2))
sketch8.addConstraint(Sketcher.Constraint("Horizontal", 4))
sketch8.addConstraint(Sketcher.Constraint("Coincident", 4, 1, 0, 2))
sketch8.addConstraint(Sketcher.Constraint("Equal", 0, 4))
sketch8.addConstraint(Sketcher.Constraint("Angle", 3, Q("121 deg")))
sketch8.addConstraint(Sketcher.Constraint("DistanceX", 2, 2, 2, 1, Q("10.97 mm")))
sketch8.addConstraint(Sketcher.Constraint("DistanceX", -1, 1, 0, 2, Q("62.5 mm")))
sketch8.addConstraint(Sketcher.Constraint("DistanceY", 0, 2, -1, 1, Q("50.025 mm")))
sketch8.addConstraint(Sketcher.Constraint("DistanceY", 1, 2, 1, 1, Q("1.35255 mm")))
groove = body.newObject("PartDesign::Groove", "Groove")
groove.Profile = sketch8
groove.ReferenceAxis = (sketch8, ["Axis0"])
groove.Angle = 360
doc.recompute()

mirrored2 = body.newObject("PartDesign::Mirrored", "Mirrored001")
mirrored2.Originals = [groove]
mirrored2.MirrorPlane = (doc.getObject("YZ_Plane"), [""])
body.Tip = mirrored2

# Sketch on XZ plane
sketch9 = body.newObject("Sketcher::SketchObject", "Sketch008")
sketch9.AttachmentSupport = (doc.getObject("XZ_Plane"), [""])
sketch9.MapMode = "FlatFace"
sketch9.addGeometry(Part.Circle(Vector(-28.3, -43.8, 0), Vector(0, 0, 1), 1.6), False)
sketch9.addGeometry(Part.Circle(Vector(27.7, -43.8, 0), Vector(0, 0, 1), 1.6), False)
sketch9.addGeometry(Part.Circle(Vector(27.7, 40.2, 0), Vector(0, 0, 1), 1.6), False)
sketch9.addGeometry(Part.Circle(Vector(-28.3, 40.2, 0), Vector(0, 0, 1), 1.6), False)
sketch9.addConstraint(Sketcher.Constraint("Equal", 0, 1))
sketch9.addConstraint(Sketcher.Constraint("Equal", 1, 2))
sketch9.addConstraint(Sketcher.Constraint("Equal", 2, 3))
sketch9.addConstraint(Sketcher.Constraint("Horizontal", 0, 3, 1, 3))
sketch9.addConstraint(Sketcher.Constraint("Horizontal", 2, 3, 3, 3))
sketch9.addConstraint(Sketcher.Constraint("Vertical", 1, 3, 2, 3))
sketch9.addConstraint(Sketcher.Constraint("Vertical", 0, 3, 3, 3))
sketch9.addConstraint(Sketcher.Constraint("DistanceX", 0, 3, 1, 3, Q("56 mm")))
sketch9.addConstraint(Sketcher.Constraint("DistanceY", 1, 3, 2, 3, Q("84 mm")))
sketch9.addConstraint(Sketcher.Constraint("Diameter", 0, Q("3.2639 mm")))
sketch9.addConstraint(Sketcher.Constraint("DistanceX", 0, 3, -1, 1, Q("28.276 mm")))
sketch9.addConstraint(Sketcher.Constraint("DistanceY", 0, 3, -1, 1, Q("43.752 mm")))
doc.recompute()
hole4 = body.newObject("PartDesign::Hole", "Hole003")
hole4.Profile = sketch9
hole4.ThreadType = "None"
hole4.Diameter = 3.2639
hole4.DepthType = "ThroughAll"
hole4.HoleCutType = "Counterbore"
hole4.HoleCutDiameter = 5.55752
hole4.HoleCutDepth = 6
hole4.Reversed = True

# Sketch on XY plane
sketch10 = body.newObject("Sketcher::SketchObject", "Sketch009")
sketch10.AttachmentSupport = (doc.getObject("XY_Plane"), [""])
sketch10.MapMode = "FlatFace"
sketch10.AttachmentOffset = App.Placement(Vector(0, 0, 62.5), App.Rotation())
sketch10.addGeometry(Part.Circle(Vector(0, -4.8, 0), Vector(0, 0, 1), 1.4), False)
sketch10.addConstraint(Sketcher.Constraint("PointOnObject", 0, 3, -2))
sketch10.addConstraint(Sketcher.Constraint("Diameter", 0, Q("2.7051 mm")))
sketch10.addConstraint(Sketcher.Constraint("DistanceY", 0, 3, -1, 1, Q("4.825 mm")))
doc.recompute()
hole5 = body.newObject("PartDesign::Hole", "Hole004")
hole5.Profile = sketch10
hole5.ThreadType = "None"
hole5.Diameter = 2.7051
hole5.DepthType = "Dimension"
hole5.Depth = 10.97
hole5.DrillPoint = "Angled"
hole5.DrillPointAngle = 118

doc.recompute()
